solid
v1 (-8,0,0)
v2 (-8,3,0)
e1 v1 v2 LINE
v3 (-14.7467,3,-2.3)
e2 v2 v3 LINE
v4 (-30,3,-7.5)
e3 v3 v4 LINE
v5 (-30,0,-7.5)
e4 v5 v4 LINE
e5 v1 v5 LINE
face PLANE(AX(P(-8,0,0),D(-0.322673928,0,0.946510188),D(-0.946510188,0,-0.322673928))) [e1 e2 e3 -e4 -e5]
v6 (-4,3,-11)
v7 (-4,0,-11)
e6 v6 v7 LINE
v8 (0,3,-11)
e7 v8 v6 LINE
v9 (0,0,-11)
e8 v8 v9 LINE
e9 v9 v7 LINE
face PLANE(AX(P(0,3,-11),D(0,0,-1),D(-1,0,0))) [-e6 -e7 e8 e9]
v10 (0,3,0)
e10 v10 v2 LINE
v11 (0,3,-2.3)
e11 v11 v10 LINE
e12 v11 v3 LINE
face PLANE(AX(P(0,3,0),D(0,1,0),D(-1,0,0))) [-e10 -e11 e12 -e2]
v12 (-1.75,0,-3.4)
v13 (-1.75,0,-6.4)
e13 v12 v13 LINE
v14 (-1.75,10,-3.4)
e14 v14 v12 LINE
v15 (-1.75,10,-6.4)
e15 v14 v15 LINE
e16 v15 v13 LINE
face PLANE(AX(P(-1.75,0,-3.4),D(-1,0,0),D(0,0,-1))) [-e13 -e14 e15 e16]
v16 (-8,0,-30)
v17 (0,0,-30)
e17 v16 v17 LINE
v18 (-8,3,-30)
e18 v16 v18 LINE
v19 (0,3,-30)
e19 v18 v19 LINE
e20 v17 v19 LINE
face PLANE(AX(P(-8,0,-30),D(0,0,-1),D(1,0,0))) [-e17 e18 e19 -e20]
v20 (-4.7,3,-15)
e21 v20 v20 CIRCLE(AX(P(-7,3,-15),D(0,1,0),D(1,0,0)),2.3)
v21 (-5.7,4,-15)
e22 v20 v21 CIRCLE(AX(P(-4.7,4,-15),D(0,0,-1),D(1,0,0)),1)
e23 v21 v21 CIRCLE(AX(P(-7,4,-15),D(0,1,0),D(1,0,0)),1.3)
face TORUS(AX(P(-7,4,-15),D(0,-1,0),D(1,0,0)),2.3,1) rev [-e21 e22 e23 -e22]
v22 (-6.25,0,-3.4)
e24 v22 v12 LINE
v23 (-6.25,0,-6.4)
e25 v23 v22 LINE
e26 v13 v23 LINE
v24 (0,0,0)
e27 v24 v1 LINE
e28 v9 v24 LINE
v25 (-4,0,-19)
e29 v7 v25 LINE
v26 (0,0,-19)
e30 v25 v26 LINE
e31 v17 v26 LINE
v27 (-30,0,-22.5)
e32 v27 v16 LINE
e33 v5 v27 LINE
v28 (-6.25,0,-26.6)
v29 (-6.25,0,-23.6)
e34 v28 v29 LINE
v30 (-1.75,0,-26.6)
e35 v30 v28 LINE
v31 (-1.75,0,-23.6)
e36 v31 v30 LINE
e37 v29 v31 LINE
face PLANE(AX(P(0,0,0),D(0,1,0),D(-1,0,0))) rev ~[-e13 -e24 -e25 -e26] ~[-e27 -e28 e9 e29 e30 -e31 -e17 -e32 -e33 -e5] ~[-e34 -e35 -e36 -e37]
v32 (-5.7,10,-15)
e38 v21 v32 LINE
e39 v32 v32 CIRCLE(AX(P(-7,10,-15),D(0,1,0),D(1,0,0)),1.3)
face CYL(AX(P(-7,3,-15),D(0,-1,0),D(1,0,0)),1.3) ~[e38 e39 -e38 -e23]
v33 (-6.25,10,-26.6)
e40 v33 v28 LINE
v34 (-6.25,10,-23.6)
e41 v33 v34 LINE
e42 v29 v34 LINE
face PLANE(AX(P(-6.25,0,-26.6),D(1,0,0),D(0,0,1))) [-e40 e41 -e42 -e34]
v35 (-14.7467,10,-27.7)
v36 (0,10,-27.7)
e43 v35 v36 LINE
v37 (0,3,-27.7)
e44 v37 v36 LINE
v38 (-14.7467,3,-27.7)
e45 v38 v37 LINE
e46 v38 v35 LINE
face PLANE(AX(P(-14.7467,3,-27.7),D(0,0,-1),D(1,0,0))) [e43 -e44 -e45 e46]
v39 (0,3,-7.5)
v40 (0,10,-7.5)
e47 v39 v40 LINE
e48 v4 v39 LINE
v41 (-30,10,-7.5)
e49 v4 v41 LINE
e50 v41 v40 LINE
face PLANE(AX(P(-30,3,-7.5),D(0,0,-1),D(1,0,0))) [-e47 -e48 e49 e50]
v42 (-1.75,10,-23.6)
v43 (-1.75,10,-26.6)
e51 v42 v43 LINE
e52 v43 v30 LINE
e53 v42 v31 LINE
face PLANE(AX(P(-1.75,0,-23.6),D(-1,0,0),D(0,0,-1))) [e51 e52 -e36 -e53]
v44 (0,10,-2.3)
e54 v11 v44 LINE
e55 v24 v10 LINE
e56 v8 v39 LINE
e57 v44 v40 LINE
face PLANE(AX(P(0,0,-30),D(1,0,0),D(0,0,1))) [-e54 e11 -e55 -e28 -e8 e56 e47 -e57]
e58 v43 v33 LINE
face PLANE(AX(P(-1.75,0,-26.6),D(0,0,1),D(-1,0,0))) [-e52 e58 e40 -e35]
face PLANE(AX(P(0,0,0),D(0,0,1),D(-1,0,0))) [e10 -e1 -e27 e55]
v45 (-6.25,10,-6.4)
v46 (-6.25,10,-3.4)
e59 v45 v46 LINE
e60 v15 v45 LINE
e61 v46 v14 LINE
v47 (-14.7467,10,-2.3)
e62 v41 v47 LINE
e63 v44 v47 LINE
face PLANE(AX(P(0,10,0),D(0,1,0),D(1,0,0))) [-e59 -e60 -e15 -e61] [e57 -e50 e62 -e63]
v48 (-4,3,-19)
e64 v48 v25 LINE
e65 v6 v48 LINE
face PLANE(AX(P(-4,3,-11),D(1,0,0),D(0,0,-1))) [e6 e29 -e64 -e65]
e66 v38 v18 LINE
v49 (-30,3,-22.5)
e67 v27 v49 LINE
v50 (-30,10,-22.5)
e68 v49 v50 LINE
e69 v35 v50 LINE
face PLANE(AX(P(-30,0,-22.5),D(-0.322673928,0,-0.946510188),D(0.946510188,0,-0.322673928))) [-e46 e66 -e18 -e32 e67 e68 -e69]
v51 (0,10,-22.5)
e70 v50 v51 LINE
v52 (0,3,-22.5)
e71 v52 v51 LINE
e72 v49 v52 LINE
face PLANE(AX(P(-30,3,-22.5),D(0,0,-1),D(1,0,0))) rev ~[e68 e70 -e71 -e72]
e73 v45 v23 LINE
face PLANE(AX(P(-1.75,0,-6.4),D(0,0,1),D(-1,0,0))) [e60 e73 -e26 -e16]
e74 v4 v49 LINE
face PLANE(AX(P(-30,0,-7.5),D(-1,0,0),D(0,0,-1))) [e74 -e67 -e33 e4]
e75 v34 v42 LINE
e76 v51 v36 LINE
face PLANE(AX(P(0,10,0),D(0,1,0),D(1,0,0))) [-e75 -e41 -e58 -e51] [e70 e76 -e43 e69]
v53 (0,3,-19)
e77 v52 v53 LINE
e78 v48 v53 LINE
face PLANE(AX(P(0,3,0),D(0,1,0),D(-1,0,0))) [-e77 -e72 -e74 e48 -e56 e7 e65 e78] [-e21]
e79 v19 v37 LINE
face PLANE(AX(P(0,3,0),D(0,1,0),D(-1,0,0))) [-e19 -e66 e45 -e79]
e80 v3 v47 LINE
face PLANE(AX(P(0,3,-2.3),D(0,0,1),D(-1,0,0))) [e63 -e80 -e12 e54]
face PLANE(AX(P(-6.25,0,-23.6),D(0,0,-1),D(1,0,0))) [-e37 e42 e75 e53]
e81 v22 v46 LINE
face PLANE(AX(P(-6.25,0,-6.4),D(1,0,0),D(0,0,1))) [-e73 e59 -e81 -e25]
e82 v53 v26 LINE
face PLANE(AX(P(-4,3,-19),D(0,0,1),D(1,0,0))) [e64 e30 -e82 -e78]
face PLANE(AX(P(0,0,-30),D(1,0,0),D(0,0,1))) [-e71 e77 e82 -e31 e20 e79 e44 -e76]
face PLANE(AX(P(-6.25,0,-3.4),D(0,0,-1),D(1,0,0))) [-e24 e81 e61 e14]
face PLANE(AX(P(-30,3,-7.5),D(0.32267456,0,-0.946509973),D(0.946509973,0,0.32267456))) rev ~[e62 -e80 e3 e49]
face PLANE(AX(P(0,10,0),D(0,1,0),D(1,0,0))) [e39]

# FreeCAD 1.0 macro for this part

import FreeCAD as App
import Part
import Sketcher
Q = App.Units.Quantity


def edges_at(feature, points):
    """Names of the edges that pass closest to the given points."""
    edges = feature.Shape.Edges
    near = lambda p: min(range(len(edges)), key=lambda i: edges[i].distToShape(Part.Vertex(*p))[0])
    return sorted({f"Edge{near(p) + 1}" for p in points})


def add_polygon(sketch, points):
    """Adds a closed chain of lines whose ends are joined by coincident constraints."""
    first, n = sketch.GeometryCount, len(points)
    for a, b in zip(points, points[1:] + points[:1]):
        sketch.addGeometry(Part.LineSegment(App.Vector(*a, 0), App.Vector(*b, 0)), False)
    for i in range(n):
        sketch.addConstraint(Sketcher.Constraint("Coincident", first + i, 2, first + (i + 1) % n, 1))

doc = App.newDocument("Part")
body = doc.addObject("PartDesign::Body", "Body")

# Sketch on XZ plane
sketch1 = body.newObject("Sketcher::SketchObject", "Sketch")
sketch1.AttachmentSupport = (doc.getObject("XZ_Plane"), [""])
sketch1.MapMode = "FlatFace"
add_polygon(sketch1, [(-8, 0), (0, 0), (0, -30), (-8, -30), (-30, -22.5), (-30, -7.5)])  # lines 0-5
add_polygon(sketch1, [(-1.75, -23.6), (-6.25, -23.6), (-6.25, -26.6), (-1.75, -26.6)])  # lines 6-9
add_polygon(sketch1, [(-1.75, -3.4), (-6.25, -3.4), (-6.25, -6.4), (-1.75, -6.4)])  # lines 10-13
sketch1.addConstraint(Sketcher.Constraint("Horizontal", 0))
sketch1.addConstraint(Sketcher.Constraint("Vertical", 1))
sketch1.addConstraint(Sketcher.Constraint("Horizontal", 2))
sketch1.addConstraint(Sketcher.Constraint("Vertical", 4))
sketch1.addConstraint(Sketcher.Constraint("Horizontal", 6))
sketch1.addConstraint(Sketcher.Constraint("Vertical", 7))
sketch1.addConstraint(Sketcher.Constraint("Horizontal", 8))
sketch1.addConstraint(Sketcher.Constraint("Vertical", 9))
sketch1.addConstraint(Sketcher.Constraint("Horizontal", 10))
sketch1.addConstraint(Sketcher.Constraint("Vertical", 11))
sketch1.addConstraint(Sketcher.Constraint("Horizontal", 12))
sketch1.addConstraint(Sketcher.Constraint("Vertical", 13))
sketch1.addConstraint(Sketcher.Constraint("Coincident", 0, 2, -1, 1))
sketch1.addConstraint(Sketcher.Constraint("Vertical", 2, 2, 5, 2))
sketch1.addConstraint(Sketcher.Constraint("Vertical", 7, 2, 10, 2))
sketch1.addConstraint(Sketcher.Constraint("Vertical", 9, 2, 12, 2))
sketch1.addConstraint(Sketcher.Constraint("Equal", 9, 11))
sketch1.addConstraint(Sketcher.Constraint("Equal", 3, 5))
sketch1.addConstraint(Sketcher.Constraint("DistanceX", 0, 1, 0, 2, Q("8 mm")))
sketch1.addConstraint(Sketcher.Constraint("DistanceY", 1, 2, 1, 1, Q("30 mm")))
sketch1.addConstraint(Sketcher.Constraint("DistanceY", 4, 1, 4, 2, Q("15 mm")))
sketch1.addConstraint(Sketcher.Constraint("DistanceY", 7, 2, 7, 1, Q("3 mm")))
sketch1.addConstraint(Sketcher.Constraint("DistanceX", 6, 2, 6, 1, Q("4.5 mm")))
sketch1.addConstraint(Sketcher.Constraint("DistanceX", 3, 2, -1, 1, Q("30 mm")))
sketch1.addConstraint(Sketcher.Constraint("DistanceY", 10, 2, -1, 1, Q("3.4 mm")))
sketch1.addConstraint(Sketcher.Constraint("DistanceY", 2, 2, 7, 2, Q("3.4 mm")))
sketch1.addConstraint(Sketcher.Constraint("DistanceX", 8, 2, -1, 1, Q("1.75 mm")))
pad1 = body.newObject("PartDesign::Pad", "Pad")
pad1.Profile = sketch1
pad1.Length = 3
pad1.Reversed = True

# Sketch on XZ plane
sketch2 = body.newObject("Sketcher::SketchObject", "Sketch001")
sketch2.AttachmentSupport = (doc.getObject("XZ_Plane"), [""])
sketch2.MapMode = "FlatFace"
sketch2.AttachmentOffset = App.Placement(App.Vector(0, 0, -3), App.Rotation())
sketch2.addGeometry(Part.Circle(App.Vector(-7, -15, 0), App.Vector(0, 0, 1), 1.3), False)  # 0
add_polygon(sketch2, [(-14.746697, -27.69999), (-30, -22.5), (0, -22.5), (0, -27.7)])  # lines 1-4
add_polygon(sketch2, [(0, -7.5), (-30, -7.5), (-14.7467, -2.3), (0, -2.3)])  # lines 5-8
sketch2.addConstraint(Sketcher.Constraint("Horizontal", 2))
sketch2.addConstraint(Sketcher.Constraint("Vertical", 3))
sketch2.addConstraint(Sketcher.Constraint("Horizontal", 4))
sketch2.addConstraint(Sketcher.Constraint("Horizontal", 5))
sketch2.addConstraint(Sketcher.Constraint("Horizontal", 7))
sketch2.addConstraint(Sketcher.Constraint("Vertical", 8))
sketch2.addConstraint(Sketcher.Constraint("PointOnObject", 2, 2, -2))
sketch2.addConstraint(Sketcher.Constraint("PointOnObject", 7, 2, -2))
sketch2.addConstraint(Sketcher.Constraint("Vertical", 1, 2, 5, 2))
sketch2.addConstraint(Sketcher.Constraint("Vertical", 4, 2, 6, 2))
sketch2.addConstraint(Sketcher.Constraint("Equal", 3, 8))
sketch2.addConstraint(Sketcher.Constraint("Diameter", 0, Q("2.6 mm")))
sketch2.addConstraint(Sketcher.Constraint("DistanceX", 0, 3, -1, 1, Q("7 mm")))
sketch2.addConstraint(Sketcher.Constraint("DistanceY", 0, 3, -1, 1, Q("15 mm")))
sketch2.addConstraint(Sketcher.Constraint("DistanceY", 1, 2, 5, 2, Q("15 mm")))
sketch2.addConstraint(Sketcher.Constraint("DistanceX", 2, 1, 2, 2, Q("30 mm")))
sketch2.addConstraint(Sketcher.Constraint("DistanceY", 3, 2, 3, 1, Q("5.2 mm")))
sketch2.addConstraint(Sketcher.Constraint("DistanceY", 1, 2, -1, 1, Q("22.5 mm")))
sketch2.addConstraint(Sketcher.Constraint("DistanceX", 4, 2, 4, 1, Q("14.7467 mm")))
pad2 = body.newObject("PartDesign::Pad", "Pad001")
pad2.Profile = sketch2
pad2.Length = 7
pad2.Reversed = True

# Sketch on XZ plane
sketch3 = body.newObject("Sketcher::SketchObject", "Sketch002")
sketch3.AttachmentSupport = (doc.getObject("XZ_Plane"), [""])
sketch3.MapMode = "FlatFace"
add_polygon(sketch3, [(-6.25, -6.4), (-1.75, -6.4), (-1.75, -3.4), (-6.25, -3.4)])  # lines 0-3
add_polygon(sketch3, [(-6.25, -26.6), (-1.75, -26.6), (-1.75, -23.6), (-6.25, -23.6)])  # lines 4-7
sketch3.addConstraint(Sketcher.Constraint("Horizontal", 0))
sketch3.addConstraint(Sketcher.Constraint("Vertical", 1))
sketch3.addConstraint(Sketcher.Constraint("Horizontal", 2))
sketch3.addConstraint(Sketcher.Constraint("Vertical", 3))
sketch3.addConstraint(Sketcher.Constraint("Horizontal", 4))
sketch3.addConstraint(Sketcher.Constraint("Vertical", 5))
sketch3.addConstraint(Sketcher.Constraint("Horizontal", 6))
sketch3.addConstraint(Sketcher.Constraint("Vertical", 7))
sketch3.addConstraint(Sketcher.Constraint("Vertical", 1, 2, 4, 2))
sketch3.addConstraint(Sketcher.Constraint("Vertical", 3, 2, 6, 2))
sketch3.addConstraint(Sketcher.Constraint("Equal", 3, 5))
sketch3.addConstraint(Sketcher.Constraint("DistanceY", 1, 1, 1, 2, Q("3 mm")))
sketch3.addConstraint(Sketcher.Constraint("DistanceX", 0, 1, 0, 2, Q("4.5 mm")))
sketch3.addConstraint(Sketcher.Constraint("DistanceY", 0, 2, -1, 1, Q("6.4 mm")))
sketch3.addConstraint(Sketcher.Constraint("DistanceY", 4, 2, -1, 1, Q("26.6 mm")))
sketch3.addConstraint(Sketcher.Constraint("DistanceX", 0, 2, -1, 1, Q("1.75 mm")))
pocket1 = body.newObject("PartDesign::Pocket", "Pocket")
pocket1.Profile = sketch3
pocket1.Type = "ThroughAll"

# Sketch on XZ plane
sketch4 = body.newObject("Sketcher::SketchObject", "Sketch003")
sketch4.AttachmentSupport = (doc.getObject("XZ_Plane"), [""])
sketch4.MapMode = "FlatFace"
sketch4.AttachmentOffset = App.Placement(App.Vector(0, 0, -3), App.Rotation())
add_polygon(sketch4, [(-4, -11), (0, -11), (0, -19), (-4, -19)])  # lines 0-3
sketch4.addConstraint(Sketcher.Constraint("Horizontal", 0))
sketch4.addConstraint(Sketcher.Constraint("Vertical", 1))
sketch4.addConstraint(Sketcher.Constraint("Horizontal", 2))
sketch4.addConstraint(Sketcher.Constraint("Vertical", 3))
sketch4.addConstraint(Sketcher.Constraint("PointOnObject", 0, 2, -2))
sketch4.addConstraint(Sketcher.Constraint("DistanceY", 1, 2, 1, 1, Q("8 mm")))
sketch4.addConstraint(Sketcher.Constraint("DistanceX", 0, 1, 0, 2, Q("4 mm")))
sketch4.addConstraint(Sketcher.Constraint("DistanceY", 0, 2, -1, 1, Q("11 mm")))
pocket2 = body.newObject("PartDesign::Pocket", "Pocket001")
pocket2.Profile = sketch4
pocket2.Type = "ThroughAll"
pocket2.Reversed = True
doc.recompute()

fillet = body.newObject("PartDesign::Fillet", "Fillet")
fillet.Base = (pocket2, edges_at(pocket2, [(-8.3, 3, -15)]))
fillet.Radius = 1

doc.recompute()
